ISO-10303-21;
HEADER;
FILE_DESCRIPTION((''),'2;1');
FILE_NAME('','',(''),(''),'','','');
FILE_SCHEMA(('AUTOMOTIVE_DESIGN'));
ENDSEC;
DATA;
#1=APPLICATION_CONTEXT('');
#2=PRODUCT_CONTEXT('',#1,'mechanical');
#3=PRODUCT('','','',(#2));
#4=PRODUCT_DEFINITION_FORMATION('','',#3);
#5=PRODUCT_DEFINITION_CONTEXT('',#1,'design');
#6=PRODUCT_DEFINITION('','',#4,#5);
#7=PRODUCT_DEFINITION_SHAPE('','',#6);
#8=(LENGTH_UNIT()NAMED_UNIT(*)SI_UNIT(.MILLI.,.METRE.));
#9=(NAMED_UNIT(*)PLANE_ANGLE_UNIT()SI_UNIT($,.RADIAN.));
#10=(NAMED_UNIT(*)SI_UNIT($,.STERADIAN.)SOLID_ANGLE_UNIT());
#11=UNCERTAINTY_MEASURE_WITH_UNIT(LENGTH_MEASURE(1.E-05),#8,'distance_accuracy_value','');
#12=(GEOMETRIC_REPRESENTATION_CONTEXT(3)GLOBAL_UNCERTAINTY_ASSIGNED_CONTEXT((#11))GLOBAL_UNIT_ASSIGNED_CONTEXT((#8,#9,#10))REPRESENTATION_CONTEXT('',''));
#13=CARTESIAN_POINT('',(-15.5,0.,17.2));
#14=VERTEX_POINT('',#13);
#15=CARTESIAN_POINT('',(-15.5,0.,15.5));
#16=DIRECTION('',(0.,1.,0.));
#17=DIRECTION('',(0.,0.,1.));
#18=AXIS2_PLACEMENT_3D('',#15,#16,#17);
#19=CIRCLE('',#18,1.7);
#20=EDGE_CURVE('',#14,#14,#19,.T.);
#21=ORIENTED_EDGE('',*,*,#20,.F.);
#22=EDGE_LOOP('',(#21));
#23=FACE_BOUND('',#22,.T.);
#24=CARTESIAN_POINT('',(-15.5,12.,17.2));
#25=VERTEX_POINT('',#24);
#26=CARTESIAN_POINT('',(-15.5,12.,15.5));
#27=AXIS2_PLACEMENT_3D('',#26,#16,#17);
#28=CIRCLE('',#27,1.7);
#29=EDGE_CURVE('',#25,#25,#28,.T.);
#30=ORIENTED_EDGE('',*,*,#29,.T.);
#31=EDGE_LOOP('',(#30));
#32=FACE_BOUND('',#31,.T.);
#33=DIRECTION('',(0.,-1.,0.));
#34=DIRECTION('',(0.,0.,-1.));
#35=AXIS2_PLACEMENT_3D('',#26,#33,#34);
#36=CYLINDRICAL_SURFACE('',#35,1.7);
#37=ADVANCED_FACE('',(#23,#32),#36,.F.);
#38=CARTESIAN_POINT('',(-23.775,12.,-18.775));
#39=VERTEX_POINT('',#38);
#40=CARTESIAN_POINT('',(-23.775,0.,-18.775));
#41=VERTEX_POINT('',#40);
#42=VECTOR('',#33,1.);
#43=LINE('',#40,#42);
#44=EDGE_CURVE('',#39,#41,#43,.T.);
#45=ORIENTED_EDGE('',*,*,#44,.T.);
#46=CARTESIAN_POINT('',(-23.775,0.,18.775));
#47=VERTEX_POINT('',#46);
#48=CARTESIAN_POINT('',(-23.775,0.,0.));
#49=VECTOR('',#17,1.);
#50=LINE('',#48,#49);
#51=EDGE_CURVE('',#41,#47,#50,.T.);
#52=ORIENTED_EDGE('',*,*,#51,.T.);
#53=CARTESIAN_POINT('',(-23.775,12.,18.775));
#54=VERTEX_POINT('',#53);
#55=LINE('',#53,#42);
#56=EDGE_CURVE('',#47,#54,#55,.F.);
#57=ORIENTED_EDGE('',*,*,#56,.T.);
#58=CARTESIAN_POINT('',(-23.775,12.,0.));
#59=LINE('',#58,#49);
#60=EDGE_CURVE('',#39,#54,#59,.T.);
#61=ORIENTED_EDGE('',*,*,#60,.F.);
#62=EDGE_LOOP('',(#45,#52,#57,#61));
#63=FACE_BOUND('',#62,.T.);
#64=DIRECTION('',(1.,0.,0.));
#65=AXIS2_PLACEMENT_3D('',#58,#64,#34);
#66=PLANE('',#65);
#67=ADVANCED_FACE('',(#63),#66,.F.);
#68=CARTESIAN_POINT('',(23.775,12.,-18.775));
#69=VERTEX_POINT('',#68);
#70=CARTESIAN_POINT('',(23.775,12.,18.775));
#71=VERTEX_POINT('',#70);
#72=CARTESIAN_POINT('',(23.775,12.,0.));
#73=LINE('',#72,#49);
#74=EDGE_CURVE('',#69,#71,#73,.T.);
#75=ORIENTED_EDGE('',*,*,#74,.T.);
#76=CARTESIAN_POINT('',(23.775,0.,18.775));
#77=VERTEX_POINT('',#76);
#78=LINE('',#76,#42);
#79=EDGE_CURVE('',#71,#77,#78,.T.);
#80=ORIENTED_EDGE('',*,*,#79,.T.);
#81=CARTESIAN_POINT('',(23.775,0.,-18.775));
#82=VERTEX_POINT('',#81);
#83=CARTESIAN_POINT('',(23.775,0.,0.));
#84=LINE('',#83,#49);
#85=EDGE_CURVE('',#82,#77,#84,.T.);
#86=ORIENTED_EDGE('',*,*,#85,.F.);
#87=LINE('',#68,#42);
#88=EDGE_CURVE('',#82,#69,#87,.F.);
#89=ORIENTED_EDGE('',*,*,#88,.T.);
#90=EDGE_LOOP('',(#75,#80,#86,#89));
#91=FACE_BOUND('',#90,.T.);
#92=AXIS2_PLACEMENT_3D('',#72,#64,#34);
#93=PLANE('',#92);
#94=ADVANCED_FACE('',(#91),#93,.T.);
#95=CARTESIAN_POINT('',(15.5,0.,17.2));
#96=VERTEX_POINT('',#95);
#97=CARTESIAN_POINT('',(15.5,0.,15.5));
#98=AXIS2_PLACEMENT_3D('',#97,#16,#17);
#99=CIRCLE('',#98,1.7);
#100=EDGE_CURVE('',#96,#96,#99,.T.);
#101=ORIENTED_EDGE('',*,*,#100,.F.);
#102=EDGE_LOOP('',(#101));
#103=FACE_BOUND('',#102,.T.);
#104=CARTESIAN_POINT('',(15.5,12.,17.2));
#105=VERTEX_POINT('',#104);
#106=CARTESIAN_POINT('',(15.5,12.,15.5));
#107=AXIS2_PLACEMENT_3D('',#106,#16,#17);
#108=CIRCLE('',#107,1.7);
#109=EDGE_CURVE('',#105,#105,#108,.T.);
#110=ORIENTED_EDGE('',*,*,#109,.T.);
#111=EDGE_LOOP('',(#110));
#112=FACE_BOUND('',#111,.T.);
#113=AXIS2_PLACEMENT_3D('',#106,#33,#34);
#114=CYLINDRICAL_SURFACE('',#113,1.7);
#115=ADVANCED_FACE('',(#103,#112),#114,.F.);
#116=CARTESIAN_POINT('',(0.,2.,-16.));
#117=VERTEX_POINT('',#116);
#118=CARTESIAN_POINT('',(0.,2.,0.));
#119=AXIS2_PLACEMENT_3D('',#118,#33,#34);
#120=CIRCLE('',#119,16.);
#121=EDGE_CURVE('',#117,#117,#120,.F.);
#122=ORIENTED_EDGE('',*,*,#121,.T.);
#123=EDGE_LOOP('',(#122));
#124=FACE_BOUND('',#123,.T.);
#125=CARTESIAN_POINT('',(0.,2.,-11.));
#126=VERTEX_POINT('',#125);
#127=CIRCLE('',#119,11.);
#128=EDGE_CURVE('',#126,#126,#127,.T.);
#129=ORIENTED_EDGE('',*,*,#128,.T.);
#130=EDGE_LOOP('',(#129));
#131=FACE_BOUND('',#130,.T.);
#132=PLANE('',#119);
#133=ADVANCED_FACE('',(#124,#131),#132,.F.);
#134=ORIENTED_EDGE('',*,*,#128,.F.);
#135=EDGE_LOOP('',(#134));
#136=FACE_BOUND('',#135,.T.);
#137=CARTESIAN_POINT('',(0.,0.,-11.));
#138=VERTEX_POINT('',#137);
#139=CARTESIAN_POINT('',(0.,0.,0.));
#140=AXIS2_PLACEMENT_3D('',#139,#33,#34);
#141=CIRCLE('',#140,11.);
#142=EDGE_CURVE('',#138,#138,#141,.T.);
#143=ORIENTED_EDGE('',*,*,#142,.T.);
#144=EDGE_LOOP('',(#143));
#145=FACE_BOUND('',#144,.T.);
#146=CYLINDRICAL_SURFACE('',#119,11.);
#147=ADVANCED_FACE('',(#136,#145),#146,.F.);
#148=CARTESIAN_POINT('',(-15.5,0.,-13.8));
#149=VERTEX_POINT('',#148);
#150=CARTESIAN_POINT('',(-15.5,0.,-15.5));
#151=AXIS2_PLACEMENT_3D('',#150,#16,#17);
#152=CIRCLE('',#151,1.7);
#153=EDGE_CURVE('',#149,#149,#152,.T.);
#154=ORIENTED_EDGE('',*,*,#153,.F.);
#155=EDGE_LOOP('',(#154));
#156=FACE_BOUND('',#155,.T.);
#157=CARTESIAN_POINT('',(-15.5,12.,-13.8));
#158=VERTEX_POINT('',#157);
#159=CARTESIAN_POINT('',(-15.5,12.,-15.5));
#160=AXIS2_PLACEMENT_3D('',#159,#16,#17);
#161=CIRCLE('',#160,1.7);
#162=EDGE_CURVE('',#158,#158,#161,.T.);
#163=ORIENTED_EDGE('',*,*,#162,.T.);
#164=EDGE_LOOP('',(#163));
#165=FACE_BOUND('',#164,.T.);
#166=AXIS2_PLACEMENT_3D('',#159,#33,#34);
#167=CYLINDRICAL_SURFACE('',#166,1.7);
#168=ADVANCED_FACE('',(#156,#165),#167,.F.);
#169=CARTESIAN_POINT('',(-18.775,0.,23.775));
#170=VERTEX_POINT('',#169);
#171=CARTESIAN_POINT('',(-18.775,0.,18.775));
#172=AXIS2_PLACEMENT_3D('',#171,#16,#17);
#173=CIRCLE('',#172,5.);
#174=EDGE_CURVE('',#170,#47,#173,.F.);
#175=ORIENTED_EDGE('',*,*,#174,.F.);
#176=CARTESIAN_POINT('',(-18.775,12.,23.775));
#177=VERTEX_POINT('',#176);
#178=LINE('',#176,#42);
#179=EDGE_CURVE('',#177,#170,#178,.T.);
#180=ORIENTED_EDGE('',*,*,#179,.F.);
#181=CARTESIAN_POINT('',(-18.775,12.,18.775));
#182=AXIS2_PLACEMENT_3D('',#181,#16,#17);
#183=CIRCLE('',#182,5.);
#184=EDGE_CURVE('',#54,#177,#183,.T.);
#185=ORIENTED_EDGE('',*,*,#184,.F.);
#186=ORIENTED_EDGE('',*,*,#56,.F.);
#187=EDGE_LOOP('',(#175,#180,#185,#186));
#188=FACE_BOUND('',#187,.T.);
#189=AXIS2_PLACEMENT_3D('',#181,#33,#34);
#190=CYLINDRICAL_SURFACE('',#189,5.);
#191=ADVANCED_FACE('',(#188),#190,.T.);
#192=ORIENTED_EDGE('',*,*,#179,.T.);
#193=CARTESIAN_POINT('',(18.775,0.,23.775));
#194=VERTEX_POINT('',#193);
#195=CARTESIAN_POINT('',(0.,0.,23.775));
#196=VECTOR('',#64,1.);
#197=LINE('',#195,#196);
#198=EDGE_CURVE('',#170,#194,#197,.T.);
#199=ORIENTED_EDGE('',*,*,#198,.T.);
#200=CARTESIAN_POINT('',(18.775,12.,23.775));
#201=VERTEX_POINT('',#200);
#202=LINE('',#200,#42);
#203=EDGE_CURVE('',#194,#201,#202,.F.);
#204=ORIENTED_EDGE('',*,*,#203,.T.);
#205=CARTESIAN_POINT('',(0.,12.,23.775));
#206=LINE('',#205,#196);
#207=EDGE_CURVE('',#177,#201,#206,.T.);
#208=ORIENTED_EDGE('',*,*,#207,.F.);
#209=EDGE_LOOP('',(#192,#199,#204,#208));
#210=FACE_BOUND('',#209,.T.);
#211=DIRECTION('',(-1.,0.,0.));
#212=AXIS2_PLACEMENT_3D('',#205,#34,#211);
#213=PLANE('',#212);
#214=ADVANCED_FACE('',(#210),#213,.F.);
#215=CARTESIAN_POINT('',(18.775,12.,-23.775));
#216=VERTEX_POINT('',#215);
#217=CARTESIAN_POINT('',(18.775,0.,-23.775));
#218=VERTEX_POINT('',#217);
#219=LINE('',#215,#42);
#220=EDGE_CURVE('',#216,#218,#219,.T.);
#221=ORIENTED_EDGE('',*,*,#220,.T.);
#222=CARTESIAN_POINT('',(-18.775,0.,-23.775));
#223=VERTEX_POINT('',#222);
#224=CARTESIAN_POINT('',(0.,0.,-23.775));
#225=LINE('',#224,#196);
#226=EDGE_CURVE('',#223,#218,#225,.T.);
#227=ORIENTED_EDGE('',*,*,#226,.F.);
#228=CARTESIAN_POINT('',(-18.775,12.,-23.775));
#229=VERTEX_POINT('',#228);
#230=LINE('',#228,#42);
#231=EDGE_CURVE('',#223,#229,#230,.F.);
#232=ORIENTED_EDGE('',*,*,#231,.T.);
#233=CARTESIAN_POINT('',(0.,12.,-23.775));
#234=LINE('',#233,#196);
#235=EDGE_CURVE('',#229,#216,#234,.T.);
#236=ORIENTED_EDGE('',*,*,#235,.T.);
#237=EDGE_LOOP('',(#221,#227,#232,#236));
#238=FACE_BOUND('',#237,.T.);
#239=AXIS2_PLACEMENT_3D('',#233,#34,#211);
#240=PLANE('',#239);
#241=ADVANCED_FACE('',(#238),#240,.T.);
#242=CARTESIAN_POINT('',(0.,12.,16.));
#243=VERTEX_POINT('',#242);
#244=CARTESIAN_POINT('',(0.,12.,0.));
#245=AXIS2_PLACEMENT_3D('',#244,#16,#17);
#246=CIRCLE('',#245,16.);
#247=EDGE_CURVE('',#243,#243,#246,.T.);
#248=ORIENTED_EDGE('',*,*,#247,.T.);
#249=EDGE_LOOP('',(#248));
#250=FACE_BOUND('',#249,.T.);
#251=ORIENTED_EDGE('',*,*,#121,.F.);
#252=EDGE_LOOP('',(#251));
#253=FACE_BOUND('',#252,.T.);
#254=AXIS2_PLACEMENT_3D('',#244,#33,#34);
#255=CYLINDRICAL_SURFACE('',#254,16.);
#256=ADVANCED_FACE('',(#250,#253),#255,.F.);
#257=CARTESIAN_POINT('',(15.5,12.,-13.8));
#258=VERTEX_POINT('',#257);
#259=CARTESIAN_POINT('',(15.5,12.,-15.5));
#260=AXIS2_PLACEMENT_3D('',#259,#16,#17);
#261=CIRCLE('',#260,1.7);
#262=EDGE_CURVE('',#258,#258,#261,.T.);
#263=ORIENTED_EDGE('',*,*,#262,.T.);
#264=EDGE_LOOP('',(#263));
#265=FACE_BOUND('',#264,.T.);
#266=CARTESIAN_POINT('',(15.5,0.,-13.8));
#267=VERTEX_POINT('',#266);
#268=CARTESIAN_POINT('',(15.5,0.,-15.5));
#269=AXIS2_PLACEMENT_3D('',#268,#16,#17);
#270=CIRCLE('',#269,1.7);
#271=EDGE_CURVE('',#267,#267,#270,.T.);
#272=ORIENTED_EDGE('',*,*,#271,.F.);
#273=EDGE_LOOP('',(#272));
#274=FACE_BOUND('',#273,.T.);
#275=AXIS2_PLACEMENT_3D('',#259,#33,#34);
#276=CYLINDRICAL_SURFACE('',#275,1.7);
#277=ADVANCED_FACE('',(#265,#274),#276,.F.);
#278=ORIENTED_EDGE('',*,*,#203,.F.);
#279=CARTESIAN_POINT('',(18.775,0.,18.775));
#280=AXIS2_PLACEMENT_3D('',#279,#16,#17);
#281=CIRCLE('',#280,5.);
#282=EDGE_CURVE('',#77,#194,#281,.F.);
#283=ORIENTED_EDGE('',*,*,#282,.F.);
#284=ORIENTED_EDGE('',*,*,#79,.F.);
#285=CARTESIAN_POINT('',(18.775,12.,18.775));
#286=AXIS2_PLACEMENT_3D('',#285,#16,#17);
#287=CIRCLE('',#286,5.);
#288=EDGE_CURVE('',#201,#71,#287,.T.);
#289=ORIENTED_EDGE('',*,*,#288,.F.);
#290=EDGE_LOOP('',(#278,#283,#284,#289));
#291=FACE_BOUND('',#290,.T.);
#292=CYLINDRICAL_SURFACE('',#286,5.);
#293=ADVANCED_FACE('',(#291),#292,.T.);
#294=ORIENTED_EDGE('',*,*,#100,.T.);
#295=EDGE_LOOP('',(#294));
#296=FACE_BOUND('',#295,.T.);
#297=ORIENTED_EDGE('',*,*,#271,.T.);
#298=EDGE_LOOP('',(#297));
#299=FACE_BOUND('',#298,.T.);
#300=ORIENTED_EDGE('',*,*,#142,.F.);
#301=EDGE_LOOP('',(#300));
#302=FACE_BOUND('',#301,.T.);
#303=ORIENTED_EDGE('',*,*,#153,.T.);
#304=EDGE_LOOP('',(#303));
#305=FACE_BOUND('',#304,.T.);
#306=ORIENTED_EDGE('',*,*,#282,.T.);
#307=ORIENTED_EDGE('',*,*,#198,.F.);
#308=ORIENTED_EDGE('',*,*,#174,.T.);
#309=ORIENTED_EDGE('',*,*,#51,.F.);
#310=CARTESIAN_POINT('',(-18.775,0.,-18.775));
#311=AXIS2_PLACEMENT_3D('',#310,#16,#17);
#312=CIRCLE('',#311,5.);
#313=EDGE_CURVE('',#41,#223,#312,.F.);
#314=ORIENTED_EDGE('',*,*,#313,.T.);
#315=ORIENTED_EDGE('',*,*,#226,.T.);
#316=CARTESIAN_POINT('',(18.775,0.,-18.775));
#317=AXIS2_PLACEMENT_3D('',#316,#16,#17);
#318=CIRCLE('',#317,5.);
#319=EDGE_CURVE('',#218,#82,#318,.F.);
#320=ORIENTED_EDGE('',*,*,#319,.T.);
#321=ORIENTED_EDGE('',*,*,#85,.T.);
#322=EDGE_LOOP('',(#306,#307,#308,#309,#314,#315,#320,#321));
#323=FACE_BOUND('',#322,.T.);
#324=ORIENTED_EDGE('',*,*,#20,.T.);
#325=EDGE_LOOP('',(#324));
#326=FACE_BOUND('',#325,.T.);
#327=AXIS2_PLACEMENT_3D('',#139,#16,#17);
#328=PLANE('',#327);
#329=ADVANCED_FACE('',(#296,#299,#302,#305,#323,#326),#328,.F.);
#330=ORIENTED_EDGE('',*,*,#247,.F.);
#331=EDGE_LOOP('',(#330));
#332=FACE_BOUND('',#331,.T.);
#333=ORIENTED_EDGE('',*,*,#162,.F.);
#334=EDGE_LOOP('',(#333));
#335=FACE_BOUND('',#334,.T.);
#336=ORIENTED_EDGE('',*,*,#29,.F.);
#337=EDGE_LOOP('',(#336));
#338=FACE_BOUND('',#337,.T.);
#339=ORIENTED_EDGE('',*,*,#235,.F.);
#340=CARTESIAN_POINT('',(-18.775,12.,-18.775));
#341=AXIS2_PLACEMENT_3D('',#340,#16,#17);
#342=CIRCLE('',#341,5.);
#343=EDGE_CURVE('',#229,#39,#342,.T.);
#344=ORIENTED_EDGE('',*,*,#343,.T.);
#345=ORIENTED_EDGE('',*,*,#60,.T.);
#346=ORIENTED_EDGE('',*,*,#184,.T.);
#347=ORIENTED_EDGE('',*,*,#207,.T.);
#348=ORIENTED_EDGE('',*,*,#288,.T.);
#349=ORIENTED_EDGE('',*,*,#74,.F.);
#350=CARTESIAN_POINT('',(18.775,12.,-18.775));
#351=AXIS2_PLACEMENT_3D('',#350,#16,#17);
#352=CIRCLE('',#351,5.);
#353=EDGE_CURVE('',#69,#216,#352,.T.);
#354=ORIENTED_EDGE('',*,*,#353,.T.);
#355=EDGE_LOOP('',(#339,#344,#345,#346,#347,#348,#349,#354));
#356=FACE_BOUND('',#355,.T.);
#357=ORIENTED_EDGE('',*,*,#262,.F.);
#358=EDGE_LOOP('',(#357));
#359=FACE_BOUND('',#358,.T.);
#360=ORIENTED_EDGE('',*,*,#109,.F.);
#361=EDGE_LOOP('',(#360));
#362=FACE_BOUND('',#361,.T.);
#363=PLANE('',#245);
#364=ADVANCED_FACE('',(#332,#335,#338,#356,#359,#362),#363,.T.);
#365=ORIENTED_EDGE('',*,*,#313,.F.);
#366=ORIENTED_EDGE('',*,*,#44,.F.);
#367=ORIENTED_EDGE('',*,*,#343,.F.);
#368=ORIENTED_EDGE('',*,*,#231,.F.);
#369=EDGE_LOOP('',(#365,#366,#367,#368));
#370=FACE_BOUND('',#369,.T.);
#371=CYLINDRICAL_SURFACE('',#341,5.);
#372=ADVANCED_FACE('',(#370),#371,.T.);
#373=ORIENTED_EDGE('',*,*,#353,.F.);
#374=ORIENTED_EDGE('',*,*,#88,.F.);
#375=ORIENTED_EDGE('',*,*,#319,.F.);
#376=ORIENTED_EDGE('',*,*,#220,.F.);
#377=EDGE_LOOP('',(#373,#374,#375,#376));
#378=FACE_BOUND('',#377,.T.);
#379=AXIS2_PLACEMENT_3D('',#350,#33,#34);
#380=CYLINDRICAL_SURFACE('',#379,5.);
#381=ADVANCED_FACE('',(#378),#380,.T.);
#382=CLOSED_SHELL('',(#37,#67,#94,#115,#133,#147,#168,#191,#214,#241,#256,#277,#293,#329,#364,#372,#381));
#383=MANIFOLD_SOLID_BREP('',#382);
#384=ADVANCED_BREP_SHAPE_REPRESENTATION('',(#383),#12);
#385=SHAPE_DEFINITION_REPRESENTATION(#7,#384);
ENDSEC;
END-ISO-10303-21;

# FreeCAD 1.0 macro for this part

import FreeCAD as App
import Part
import Sketcher


def edges_at(feature, points):
    """Names of the edges that pass closest to the given points."""
    edges = feature.Shape.Edges
    near = lambda p: min(range(len(edges)), key=lambda i: edges[i].distToShape(Part.Vertex(*p))[0])
    return sorted({f"Edge{near(p) + 1}" for p in points})

doc = App.newDocument("Part")
body = doc.addObject("PartDesign::Body", "Body")

sketch1 = doc.addObject("Sketcher::SketchObject", "Sketch")
body.addObject(sketch1)
sketch1.AttachmentSupport = (doc.XZ_Plane, [""])
sketch1.MapMode = "FlatFace"
sketch1.addGeometry([
    Part.LineSegment(App.Vector(-23.8, -23.8, 0), App.Vector(-23.8, 23.8, 0)),
    Part.LineSegment(App.Vector(-23.8, 23.8, 0), App.Vector(23.8, 23.8, 0)),
    Part.LineSegment(App.Vector(23.8, 23.8, 0), App.Vector(23.8, -23.8, 0)),
    Part.LineSegment(App.Vector(23.8, -23.8, 0), App.Vector(-23.8, -23.8, 0)),
    Part.Circle(App.Vector(-15.5, 15.5, 0), App.Vector(0, 0, 1), 1.7),
    Part.Circle(App.Vector(15.5, 15.5, 0), App.Vector(0, 0, 1), 1.7),
    Part.Circle(App.Vector(-15.5, -15.5, 0), App.Vector(0, 0, 1), 1.7),
    Part.Circle(App.Vector(0, 0, 0), App.Vector(0, 0, 1), 16),
    Part.Circle(App.Vector(15.5, -15.5, 0), App.Vector(0, 0, 1), 1.7),
], False)
sketch1.addConstraint([
    Sketcher.Constraint("Coincident", 0, 2, 1, 1),
    Sketcher.Constraint("Coincident", 1, 2, 2, 1),
    Sketcher.Constraint("Coincident", 2, 2, 3, 1),
    Sketcher.Constraint("Coincident", 3, 2, 0, 1),
    Sketcher.Constraint("Vertical", 0),
    Sketcher.Constraint("Horizontal", 1),
    Sketcher.Constraint("Vertical", 2),
    Sketcher.Constraint("Horizontal", 3),
    Sketcher.Constraint("Coincident", 7, 3, -1, 1),
    Sketcher.Constraint("Equal", 4, 5),
    Sketcher.Constraint("Equal", 5, 6),
    Sketcher.Constraint("Equal", 6, 8),
    Sketcher.Constraint("Symmetric", 5, 3, 6, 3, -1, 1),
    Sketcher.Constraint("Symmetric", 4, 3, 8, 3, -1, 1),
    Sketcher.Constraint("Symmetric", 0, 2, 2, 2, -1, 1),
    Sketcher.Constraint("Symmetric", 4, 3, 5, 3, -2),
    Sketcher.Constraint("Equal", 3, 0),
    Sketcher.Constraint("Diameter", 7, 32.0),
    Sketcher.Constraint("Diameter", 4, 3.4),
    Sketcher.Constraint("DistanceX", 4, 3, 5, 3, 31.0),
    Sketcher.Constraint("DistanceY", 6, 3, 4, 3, 31.0),
    Sketcher.Constraint("DistanceX", 1, 1, 1, 2, 47.55),
])
pad1 = doc.addObject("PartDesign::Pad", "Pad")
body.addObject(pad1)
pad1.Profile = sketch1
pad1.Length = 12
pad1.Reversed = True

sketch2 = doc.addObject("Sketcher::SketchObject", "Sketch001")
body.addObject(sketch2)
sketch2.AttachmentSupport = (doc.XZ_Plane, [""])
sketch2.MapMode = "FlatFace"
sketch2.addGeometry([
    Part.Circle(App.Vector(0, 0, 0), App.Vector(0, 0, 1), 16),
    Part.Circle(App.Vector(0, 0, 0), App.Vector(0, 0, 1), 11),
], False)
sketch2.addConstraint([
    Sketcher.Constraint("Coincident", 0, 3, -1, 1),
    Sketcher.Constraint("Coincident", 1, 3, -1, 1),
    Sketcher.Constraint("Diameter", 0, 32.0),
    Sketcher.Constraint("Diameter", 1, 22.0),
])
pad2 = doc.addObject("PartDesign::Pad", "Pad001")
body.addObject(pad2)
pad2.Profile = sketch2
pad2.Length = 2
pad2.Reversed = True
doc.recompute()

fillet = doc.addObject("PartDesign::Fillet", "Fillet")
body.addObject(fillet)
fillet.Base = (pad2, edges_at(pad2, [
    (23.775, 6, 23.775),
    (-23.775, 6, 23.775),
    (-23.775, 6, -23.775),
    (23.775, 6, -23.775),
]))
fillet.Radius = 5

doc.recompute()
